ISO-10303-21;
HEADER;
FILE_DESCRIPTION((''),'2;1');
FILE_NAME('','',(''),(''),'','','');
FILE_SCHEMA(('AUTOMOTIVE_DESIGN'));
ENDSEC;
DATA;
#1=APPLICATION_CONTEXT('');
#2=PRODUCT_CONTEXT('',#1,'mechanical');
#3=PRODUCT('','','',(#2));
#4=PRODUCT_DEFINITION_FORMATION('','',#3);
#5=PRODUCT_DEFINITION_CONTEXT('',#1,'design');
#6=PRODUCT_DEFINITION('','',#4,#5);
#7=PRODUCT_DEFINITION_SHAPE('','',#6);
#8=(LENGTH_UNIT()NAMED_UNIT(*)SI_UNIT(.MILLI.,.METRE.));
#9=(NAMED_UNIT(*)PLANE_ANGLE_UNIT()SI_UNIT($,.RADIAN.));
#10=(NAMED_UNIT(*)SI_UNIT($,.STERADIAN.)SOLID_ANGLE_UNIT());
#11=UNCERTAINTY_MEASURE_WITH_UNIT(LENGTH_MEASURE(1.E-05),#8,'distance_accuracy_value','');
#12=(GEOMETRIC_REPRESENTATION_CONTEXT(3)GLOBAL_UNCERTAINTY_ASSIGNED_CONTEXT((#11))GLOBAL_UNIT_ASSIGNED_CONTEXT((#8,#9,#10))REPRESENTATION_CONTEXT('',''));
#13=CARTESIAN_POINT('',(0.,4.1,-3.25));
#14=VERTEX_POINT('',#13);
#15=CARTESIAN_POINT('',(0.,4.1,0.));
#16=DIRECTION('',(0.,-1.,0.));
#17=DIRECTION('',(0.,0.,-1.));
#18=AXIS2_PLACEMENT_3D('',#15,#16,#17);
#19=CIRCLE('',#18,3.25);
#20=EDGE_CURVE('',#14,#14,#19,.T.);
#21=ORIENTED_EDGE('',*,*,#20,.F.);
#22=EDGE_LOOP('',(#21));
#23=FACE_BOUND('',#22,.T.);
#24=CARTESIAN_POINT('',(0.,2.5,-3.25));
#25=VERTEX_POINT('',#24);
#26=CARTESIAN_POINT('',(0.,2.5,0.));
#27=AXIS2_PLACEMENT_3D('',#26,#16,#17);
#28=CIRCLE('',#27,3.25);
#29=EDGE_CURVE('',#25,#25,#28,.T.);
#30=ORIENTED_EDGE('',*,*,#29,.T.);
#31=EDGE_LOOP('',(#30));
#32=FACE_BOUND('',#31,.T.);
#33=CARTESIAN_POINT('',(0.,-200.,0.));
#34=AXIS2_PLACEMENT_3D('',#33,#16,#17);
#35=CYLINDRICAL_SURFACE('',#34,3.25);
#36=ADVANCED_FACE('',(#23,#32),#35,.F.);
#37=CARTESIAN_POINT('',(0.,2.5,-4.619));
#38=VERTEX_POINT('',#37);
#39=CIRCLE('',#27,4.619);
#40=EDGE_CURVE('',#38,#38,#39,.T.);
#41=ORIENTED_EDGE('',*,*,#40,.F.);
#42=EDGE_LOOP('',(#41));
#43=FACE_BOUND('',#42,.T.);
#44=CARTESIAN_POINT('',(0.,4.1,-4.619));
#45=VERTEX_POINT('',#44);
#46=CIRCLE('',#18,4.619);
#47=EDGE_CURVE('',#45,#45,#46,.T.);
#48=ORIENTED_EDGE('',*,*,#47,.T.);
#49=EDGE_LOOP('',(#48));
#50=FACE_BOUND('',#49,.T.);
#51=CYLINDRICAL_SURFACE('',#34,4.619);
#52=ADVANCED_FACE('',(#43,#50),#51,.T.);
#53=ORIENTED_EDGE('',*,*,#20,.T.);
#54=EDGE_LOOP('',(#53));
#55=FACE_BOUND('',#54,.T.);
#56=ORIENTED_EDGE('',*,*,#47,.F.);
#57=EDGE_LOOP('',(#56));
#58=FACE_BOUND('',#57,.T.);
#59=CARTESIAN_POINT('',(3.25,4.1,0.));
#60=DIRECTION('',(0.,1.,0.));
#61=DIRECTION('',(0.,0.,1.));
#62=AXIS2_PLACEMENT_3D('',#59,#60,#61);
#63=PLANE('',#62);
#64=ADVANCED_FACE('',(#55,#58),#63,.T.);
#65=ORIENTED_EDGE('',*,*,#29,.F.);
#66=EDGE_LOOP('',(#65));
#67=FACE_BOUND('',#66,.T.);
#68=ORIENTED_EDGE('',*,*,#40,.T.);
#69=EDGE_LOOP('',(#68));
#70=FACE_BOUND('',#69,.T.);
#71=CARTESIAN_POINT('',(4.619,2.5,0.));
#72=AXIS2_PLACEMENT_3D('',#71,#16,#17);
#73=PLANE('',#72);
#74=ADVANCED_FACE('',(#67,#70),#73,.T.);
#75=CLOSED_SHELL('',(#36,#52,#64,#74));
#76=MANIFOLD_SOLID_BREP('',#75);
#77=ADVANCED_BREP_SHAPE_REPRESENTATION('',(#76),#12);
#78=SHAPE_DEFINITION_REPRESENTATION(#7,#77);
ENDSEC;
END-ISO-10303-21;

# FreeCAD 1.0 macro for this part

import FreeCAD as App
import Part
import Sketcher

V = App.Vector


def add_polygon(sketch, points):
    """Adds a closed chain of lines whose ends are joined by coincident constraints."""
    first, n = sketch.GeometryCount, len(points)
    for a, b in zip(points, points[1:] + points[:1]):
        sketch.addGeometry(Part.LineSegment(App.Vector(*a, 0), App.Vector(*b, 0)), False)
    for i in range(n):
        sketch.addConstraint(Sketcher.Constraint("Coincident", first + i, 2, first + (i + 1) % n, 1))

doc = App.newDocument("Part")
body = doc.addObject("PartDesign::Body", "Body")

# Sketch on XY plane
sketch1 = body.newObject("Sketcher::SketchObject", "Sketch")
sketch1.AttachmentSupport = (doc.getObject("XY_Plane"), [""])
sketch1.MapMode = "FlatFace"
add_polygon(sketch1, [(3.25, 4.1), (3.25, 2.5), (4.619, 2.5), (4.619, 4.1)])  # lines 0-3
sketch1.addConstraint(Sketcher.Constraint("Vertical", 0))
sketch1.addConstraint(Sketcher.Constraint("Horizontal", 1))
sketch1.addConstraint(Sketcher.Constraint("Vertical", 2))
sketch1.addConstraint(Sketcher.Constraint("Horizontal", 3))
sketch1.addConstraint(Sketcher.Constraint("DistanceY", 0, 2, 0, 1, 1.6))
sketch1.addConstraint(Sketcher.Constraint("DistanceY", -1, 1, 0, 2, 2.5))
sketch1.addConstraint(Sketcher.Constraint("DistanceX", 1, 1, 1, 2, 1.369))
sketch1.addConstraint(Sketcher.Constraint("DistanceX", -1, 1, 0, 2, 3.25))
revolution = body.newObject("PartDesign::Revolution", "Revolution")
revolution.Profile = sketch1
revolution.ReferenceAxis = (sketch1, ["V_Axis"])
revolution.Angle = 360

doc.recompute()
